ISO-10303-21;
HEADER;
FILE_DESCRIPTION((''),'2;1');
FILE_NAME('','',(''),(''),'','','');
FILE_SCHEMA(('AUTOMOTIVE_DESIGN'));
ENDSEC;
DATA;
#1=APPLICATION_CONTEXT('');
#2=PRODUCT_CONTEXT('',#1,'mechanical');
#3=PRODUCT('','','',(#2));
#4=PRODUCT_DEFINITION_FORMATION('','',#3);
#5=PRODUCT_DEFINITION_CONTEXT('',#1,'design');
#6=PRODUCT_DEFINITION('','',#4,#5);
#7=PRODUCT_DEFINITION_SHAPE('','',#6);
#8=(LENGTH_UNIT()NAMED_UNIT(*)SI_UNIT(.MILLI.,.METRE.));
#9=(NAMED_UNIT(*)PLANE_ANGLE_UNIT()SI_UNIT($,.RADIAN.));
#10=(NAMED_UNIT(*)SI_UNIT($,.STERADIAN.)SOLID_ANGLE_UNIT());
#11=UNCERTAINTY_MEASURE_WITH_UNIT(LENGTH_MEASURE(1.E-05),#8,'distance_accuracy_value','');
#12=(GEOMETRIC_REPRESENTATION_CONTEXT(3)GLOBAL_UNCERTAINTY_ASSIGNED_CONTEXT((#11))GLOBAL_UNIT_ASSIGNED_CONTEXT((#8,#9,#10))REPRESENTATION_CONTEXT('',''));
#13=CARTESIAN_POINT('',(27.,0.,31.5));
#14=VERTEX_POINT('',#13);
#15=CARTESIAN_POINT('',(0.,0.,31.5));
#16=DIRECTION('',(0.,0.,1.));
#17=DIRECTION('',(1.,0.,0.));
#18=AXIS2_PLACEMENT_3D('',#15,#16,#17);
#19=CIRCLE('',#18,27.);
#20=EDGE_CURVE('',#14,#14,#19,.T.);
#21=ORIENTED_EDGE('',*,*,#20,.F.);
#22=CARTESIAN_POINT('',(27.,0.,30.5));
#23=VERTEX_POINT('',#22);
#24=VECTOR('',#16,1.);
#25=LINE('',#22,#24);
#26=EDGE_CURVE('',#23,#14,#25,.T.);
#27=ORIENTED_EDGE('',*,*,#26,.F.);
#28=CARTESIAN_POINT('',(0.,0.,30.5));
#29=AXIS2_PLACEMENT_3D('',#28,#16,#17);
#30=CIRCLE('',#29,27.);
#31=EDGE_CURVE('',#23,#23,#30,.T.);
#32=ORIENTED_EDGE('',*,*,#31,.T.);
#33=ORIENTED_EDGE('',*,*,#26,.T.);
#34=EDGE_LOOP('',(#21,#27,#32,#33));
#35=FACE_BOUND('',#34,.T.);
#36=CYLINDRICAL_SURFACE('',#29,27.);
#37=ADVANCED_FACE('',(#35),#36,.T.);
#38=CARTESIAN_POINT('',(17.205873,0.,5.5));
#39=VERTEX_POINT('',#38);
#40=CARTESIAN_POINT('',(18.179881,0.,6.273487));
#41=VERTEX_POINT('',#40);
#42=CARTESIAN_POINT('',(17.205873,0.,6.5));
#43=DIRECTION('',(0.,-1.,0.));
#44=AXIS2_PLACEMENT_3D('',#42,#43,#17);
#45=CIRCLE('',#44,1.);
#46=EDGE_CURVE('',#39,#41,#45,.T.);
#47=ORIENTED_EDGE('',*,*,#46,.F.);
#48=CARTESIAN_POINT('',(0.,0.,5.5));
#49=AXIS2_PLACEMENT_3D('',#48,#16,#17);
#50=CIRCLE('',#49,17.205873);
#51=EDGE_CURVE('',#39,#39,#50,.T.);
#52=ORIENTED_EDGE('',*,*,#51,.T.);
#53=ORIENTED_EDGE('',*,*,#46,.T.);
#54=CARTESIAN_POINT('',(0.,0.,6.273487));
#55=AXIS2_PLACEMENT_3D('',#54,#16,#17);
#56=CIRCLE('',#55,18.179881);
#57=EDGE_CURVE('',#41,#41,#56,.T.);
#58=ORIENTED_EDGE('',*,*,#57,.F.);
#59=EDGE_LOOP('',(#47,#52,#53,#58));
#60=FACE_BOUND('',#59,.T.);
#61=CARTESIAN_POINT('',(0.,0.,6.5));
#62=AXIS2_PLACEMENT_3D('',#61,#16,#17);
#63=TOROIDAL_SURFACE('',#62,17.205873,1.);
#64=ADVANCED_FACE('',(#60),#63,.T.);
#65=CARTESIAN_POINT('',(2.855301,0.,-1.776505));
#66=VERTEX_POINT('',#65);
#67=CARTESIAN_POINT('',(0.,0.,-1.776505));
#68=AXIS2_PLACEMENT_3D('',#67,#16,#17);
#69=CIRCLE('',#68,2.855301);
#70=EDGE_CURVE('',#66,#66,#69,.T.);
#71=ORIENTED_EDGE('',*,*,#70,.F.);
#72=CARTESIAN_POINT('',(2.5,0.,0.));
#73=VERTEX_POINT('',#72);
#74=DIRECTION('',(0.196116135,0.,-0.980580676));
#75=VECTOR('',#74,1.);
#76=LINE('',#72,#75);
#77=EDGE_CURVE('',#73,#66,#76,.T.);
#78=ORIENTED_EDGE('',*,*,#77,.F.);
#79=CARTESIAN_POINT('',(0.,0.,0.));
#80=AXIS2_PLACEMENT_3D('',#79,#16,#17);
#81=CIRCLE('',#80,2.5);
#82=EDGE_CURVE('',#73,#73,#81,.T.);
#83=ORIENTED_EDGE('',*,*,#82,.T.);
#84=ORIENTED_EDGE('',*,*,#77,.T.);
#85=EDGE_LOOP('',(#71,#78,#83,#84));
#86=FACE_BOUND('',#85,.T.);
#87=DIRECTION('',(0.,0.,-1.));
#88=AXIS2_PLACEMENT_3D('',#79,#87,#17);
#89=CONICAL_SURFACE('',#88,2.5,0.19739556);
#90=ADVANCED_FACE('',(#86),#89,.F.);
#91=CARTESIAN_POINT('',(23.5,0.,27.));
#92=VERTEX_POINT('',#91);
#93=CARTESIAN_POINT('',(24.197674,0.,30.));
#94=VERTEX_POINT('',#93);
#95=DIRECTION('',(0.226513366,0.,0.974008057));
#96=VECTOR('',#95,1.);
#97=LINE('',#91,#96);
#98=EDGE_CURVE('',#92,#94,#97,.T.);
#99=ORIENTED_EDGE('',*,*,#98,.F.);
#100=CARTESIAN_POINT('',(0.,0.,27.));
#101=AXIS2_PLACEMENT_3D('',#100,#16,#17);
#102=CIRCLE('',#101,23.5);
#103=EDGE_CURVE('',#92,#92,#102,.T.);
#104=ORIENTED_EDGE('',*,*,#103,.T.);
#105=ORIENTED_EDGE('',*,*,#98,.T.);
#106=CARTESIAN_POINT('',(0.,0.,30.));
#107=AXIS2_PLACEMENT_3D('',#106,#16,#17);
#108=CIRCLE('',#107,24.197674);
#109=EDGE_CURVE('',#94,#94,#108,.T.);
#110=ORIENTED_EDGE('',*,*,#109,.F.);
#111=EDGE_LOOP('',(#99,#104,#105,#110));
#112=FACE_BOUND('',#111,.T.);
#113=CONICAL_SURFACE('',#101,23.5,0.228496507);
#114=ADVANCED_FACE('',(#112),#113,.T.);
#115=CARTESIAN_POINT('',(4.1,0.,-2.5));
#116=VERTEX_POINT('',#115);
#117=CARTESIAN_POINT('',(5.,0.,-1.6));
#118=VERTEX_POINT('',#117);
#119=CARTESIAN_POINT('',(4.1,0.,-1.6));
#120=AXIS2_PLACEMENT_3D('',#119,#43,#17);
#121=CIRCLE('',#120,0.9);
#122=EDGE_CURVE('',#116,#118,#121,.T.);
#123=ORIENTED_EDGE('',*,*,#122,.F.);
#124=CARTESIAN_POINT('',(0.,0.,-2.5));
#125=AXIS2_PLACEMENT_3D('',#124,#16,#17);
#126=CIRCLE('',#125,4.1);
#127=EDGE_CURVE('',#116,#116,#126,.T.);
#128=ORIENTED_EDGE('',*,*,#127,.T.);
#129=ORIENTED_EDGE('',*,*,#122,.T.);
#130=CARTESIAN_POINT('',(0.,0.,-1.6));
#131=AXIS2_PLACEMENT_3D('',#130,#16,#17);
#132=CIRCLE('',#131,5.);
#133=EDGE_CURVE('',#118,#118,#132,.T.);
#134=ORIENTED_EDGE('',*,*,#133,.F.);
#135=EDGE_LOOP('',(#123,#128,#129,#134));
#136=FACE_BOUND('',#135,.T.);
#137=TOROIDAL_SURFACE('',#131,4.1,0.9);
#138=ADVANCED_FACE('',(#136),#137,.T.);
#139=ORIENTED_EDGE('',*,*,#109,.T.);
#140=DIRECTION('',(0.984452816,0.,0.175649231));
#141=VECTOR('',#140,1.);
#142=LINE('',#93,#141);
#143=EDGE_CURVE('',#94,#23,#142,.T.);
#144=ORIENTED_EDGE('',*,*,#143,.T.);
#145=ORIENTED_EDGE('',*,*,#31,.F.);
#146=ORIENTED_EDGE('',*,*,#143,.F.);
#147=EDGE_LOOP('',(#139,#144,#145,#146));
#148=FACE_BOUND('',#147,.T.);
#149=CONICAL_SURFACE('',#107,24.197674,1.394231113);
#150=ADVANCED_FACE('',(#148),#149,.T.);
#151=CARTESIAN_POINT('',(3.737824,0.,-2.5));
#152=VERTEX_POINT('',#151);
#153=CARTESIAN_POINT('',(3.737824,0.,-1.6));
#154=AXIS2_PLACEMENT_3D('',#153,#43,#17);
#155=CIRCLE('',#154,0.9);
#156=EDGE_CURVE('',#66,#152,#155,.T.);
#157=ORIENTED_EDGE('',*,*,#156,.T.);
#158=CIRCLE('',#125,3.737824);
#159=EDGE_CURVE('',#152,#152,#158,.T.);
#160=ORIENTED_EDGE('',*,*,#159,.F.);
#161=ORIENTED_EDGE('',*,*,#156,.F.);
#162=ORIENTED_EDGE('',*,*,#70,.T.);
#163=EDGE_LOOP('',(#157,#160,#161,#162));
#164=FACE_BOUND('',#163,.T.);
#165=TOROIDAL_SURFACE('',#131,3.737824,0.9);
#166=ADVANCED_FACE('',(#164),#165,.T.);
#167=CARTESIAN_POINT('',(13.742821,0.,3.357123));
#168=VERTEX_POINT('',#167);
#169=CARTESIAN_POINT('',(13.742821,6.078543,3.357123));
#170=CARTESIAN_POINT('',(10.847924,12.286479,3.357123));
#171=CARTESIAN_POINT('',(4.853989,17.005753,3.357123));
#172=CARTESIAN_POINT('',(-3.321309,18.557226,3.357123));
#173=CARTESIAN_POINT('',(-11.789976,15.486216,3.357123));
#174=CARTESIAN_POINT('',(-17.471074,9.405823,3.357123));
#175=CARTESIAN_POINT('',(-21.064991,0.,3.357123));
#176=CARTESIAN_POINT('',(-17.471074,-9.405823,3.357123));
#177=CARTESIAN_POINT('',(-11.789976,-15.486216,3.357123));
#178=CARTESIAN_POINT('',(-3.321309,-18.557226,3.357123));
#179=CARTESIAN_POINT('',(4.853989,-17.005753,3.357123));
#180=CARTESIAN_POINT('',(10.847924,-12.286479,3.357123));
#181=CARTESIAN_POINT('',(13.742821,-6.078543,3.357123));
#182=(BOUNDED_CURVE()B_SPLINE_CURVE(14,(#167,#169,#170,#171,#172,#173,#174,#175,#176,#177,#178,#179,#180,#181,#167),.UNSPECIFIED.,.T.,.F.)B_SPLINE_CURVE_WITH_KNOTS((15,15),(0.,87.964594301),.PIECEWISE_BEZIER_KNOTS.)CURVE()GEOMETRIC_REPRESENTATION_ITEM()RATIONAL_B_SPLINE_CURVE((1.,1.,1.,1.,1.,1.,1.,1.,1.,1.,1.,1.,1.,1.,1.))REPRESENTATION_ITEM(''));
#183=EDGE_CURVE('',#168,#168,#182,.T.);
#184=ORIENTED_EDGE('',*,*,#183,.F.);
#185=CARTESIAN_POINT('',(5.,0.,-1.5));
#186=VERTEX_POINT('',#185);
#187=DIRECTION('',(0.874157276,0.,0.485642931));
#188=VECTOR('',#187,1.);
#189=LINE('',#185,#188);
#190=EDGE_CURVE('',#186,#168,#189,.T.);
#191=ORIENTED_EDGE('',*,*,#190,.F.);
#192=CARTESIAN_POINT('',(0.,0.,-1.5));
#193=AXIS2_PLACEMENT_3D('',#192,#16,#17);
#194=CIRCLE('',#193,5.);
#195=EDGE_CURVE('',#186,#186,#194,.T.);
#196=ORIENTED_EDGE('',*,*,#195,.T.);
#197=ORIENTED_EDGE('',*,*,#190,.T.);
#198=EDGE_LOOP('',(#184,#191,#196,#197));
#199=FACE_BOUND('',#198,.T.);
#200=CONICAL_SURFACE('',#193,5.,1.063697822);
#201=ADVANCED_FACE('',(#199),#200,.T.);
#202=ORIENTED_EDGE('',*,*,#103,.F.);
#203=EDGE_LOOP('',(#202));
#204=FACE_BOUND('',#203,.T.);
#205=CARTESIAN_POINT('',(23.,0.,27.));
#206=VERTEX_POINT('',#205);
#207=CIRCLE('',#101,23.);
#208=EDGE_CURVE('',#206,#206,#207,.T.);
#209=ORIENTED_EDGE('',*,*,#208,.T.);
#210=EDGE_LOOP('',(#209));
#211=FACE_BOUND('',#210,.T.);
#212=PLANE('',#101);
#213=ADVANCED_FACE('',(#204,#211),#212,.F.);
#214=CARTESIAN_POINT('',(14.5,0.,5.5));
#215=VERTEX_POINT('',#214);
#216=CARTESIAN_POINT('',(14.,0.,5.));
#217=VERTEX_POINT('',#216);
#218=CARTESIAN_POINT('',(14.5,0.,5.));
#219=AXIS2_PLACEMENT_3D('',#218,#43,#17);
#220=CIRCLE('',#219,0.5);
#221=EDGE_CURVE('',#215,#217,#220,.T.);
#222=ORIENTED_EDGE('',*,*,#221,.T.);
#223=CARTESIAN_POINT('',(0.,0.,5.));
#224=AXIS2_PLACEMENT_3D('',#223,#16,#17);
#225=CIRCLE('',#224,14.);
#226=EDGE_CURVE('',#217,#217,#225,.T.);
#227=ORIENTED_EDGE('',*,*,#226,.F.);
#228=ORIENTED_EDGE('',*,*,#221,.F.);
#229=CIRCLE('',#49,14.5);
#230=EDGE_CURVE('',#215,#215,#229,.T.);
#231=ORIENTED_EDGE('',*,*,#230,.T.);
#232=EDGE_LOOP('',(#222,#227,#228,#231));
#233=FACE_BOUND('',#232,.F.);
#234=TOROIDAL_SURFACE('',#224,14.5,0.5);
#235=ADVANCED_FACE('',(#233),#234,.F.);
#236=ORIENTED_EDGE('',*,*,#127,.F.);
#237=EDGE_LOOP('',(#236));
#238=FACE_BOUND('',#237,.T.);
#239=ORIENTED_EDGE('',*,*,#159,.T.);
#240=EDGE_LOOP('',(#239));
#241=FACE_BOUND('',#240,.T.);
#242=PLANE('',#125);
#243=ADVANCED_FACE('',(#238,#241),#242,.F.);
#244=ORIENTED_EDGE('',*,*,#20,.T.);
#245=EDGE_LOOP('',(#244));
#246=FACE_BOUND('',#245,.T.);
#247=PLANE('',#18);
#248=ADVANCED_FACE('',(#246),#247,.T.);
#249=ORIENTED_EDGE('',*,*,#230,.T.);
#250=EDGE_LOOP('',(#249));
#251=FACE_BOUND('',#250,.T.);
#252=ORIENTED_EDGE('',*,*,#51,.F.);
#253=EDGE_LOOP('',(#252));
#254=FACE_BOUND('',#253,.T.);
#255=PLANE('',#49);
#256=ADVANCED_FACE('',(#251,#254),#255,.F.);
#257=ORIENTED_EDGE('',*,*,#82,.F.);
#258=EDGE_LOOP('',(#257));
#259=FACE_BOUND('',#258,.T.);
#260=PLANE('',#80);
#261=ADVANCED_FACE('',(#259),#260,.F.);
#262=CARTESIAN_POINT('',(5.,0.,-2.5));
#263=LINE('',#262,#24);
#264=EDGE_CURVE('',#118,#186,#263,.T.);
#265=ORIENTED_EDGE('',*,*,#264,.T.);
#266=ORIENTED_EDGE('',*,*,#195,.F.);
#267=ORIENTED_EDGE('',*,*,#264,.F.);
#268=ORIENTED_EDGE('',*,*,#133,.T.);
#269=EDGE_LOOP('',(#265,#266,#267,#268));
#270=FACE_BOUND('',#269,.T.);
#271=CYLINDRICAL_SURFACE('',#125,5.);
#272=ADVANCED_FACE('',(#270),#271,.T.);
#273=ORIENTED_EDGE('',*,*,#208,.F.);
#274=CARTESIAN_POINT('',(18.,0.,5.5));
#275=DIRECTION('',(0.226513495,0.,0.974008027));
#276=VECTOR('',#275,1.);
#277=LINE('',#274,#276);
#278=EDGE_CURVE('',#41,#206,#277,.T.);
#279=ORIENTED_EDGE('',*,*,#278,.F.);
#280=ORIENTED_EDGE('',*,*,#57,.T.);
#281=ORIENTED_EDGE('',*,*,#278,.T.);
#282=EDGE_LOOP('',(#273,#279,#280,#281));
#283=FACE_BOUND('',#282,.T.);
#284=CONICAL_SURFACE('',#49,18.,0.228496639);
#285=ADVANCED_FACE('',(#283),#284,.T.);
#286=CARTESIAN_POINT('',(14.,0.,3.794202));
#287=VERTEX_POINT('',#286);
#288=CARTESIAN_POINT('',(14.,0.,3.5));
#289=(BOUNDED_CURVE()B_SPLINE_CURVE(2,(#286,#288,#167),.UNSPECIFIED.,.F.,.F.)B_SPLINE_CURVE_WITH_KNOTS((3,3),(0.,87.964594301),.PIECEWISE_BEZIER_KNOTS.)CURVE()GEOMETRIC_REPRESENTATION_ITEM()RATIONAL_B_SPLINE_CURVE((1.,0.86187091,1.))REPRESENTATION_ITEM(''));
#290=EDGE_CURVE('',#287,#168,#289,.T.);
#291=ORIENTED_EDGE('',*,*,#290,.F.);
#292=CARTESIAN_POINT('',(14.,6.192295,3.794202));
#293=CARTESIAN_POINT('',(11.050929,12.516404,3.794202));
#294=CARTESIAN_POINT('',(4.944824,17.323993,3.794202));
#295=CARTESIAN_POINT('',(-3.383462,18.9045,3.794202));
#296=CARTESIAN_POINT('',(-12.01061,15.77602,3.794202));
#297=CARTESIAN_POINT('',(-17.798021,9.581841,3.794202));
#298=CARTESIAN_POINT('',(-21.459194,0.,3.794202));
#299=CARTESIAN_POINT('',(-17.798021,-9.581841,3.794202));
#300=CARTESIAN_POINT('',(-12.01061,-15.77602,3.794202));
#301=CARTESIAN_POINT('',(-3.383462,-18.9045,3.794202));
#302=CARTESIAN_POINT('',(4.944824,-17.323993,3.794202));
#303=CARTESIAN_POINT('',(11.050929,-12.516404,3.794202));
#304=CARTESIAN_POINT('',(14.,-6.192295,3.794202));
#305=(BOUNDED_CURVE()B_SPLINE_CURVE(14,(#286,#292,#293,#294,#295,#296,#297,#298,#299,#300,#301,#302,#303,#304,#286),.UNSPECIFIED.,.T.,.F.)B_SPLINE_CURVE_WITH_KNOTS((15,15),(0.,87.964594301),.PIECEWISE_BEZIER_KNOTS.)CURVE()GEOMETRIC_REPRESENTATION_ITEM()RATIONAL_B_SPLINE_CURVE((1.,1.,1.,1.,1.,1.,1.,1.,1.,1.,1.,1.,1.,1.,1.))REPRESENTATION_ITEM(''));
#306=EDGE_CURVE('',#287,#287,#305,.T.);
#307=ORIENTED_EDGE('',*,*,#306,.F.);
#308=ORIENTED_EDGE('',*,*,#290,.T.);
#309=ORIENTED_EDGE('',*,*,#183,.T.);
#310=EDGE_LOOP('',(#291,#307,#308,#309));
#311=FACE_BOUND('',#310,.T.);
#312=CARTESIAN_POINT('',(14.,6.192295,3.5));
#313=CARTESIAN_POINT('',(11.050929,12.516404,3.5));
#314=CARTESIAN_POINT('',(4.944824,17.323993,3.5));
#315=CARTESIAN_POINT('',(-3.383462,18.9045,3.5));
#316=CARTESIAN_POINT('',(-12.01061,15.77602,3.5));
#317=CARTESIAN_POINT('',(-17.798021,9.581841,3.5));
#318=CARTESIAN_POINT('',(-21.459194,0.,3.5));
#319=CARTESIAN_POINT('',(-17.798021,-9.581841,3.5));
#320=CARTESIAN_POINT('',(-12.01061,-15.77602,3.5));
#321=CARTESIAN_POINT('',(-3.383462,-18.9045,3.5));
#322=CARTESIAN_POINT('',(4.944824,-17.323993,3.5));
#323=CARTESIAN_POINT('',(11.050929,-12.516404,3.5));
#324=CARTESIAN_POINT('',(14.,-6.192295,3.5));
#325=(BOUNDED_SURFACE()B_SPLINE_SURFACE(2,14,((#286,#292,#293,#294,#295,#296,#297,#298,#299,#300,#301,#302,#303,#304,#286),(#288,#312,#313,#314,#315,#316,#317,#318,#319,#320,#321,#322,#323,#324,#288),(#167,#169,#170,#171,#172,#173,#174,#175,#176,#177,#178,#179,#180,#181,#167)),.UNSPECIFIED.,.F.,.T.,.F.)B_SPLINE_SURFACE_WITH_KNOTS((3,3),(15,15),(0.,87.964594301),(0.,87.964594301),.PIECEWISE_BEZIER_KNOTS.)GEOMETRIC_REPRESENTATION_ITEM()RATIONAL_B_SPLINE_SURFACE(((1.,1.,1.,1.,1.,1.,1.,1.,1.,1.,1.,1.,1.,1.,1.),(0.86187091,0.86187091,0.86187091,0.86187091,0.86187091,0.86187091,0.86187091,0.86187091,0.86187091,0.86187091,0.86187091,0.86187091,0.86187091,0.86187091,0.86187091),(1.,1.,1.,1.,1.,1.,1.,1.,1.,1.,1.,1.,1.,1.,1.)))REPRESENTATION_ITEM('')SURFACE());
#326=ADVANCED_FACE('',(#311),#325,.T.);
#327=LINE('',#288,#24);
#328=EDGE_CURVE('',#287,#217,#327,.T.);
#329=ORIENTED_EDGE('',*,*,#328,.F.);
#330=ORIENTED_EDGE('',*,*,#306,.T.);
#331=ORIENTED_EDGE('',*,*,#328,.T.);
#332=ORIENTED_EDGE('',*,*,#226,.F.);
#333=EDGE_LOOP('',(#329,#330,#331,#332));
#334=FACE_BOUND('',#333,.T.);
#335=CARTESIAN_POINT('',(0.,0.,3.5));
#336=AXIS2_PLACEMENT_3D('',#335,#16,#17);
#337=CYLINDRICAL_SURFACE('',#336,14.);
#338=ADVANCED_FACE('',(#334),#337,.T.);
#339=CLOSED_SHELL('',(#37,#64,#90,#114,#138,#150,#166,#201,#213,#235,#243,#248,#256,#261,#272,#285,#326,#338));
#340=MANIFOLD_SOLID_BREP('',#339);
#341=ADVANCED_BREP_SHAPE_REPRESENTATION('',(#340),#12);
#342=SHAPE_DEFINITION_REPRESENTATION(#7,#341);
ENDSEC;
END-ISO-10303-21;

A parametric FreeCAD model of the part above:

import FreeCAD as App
import Part
import Sketcher
from FreeCAD import Vector
Q = App.Units.Quantity


def edges_at(feature, points):
    """Names of the edges that pass closest to the given points."""
    edges = feature.Shape.Edges
    near = lambda p: min(range(len(edges)), key=lambda i: edges[i].distToShape(Part.Vertex(*p))[0])
    return sorted({f"Edge{near(p) + 1}" for p in points})


def add_polygon(sketch, points):
    """Adds a closed chain of lines whose ends are joined by coincident constraints."""
    first, n = sketch.GeometryCount, len(points)
    for a, b in zip(points, points[1:] + points[:1]):
        sketch.addGeometry(Part.LineSegment(App.Vector(*a, 0), App.Vector(*b, 0)), False)
    for i in range(n):
        sketch.addConstraint(Sketcher.Constraint("Coincident", first + i, 2, first + (i + 1) % n, 1))

doc = App.newDocument("Part")
body = doc.addObject("PartDesign::Body", "Body")

sketch1 = body.newObject("Sketcher::SketchObject", "Sketch")
sketch1.AttachmentSupport = (doc.getObject("XZ_Plane"), [""])
sketch1.MapMode = "FlatFace"
add_polygon(sketch1, [(0, 0), (2.5, 0), (3, -2.5), (5, -2.5), (5, -1.5), (14, 3.5), (14, 5.5), (18, 5.5), (23, 27), (23.5, 27), (24.197674, 30), (27, 30.5), (27, 31.5), (0, 31.5)])
sketch1.addConstraint([
    Sketcher.Constraint("Horizontal", 0),
    Sketcher.Constraint("Horizontal", 2),
    Sketcher.Constraint("Vertical", 3),
    Sketcher.Constraint("Vertical", 5),
    Sketcher.Constraint("Horizontal", 6),
    Sketcher.Constraint("Horizontal", 8),
    Sketcher.Constraint("Vertical", 11),
    Sketcher.Constraint("Horizontal", 12),
    Sketcher.Constraint("Vertical", 13),
    Sketcher.Constraint("Coincident", 13, 2, -1, 1),
    Sketcher.Constraint("Parallel", 7, 9),
    Sketcher.Constraint("Equal", 2, 5),
    Sketcher.Constraint("Equal", 3, 11),
    Sketcher.Constraint("DistanceX", 2, 1, 2, 2, Q("2 mm")),
    Sketcher.Constraint("DistanceX", 6, 1, 6, 2, Q("4 mm")),
    Sketcher.Constraint("DistanceX", 12, 2, 12, 1, Q("27 mm")),
    Sketcher.Constraint("DistanceY", 3, 1, 3, 2, Q("1 mm")),
    Sketcher.Constraint("DistanceX", 0, 1, 0, 2, Q("2.5 mm")),
    Sketcher.Constraint("DistanceX", 8, 1, 8, 2, Q("0.5 mm")),
    Sketcher.Constraint("DistanceY", 13, 2, 13, 1, Q("31.5 mm")),
    Sketcher.Constraint("DistanceX", -1, 1, 1, 2, Q("3 mm")),
    Sketcher.Constraint("DistanceX", -1, 1, 4, 2, Q("14 mm")),
    Sketcher.Constraint("DistanceX", -1, 1, 7, 2, Q("23 mm")),
    Sketcher.Constraint("DistanceY", -1, 1, 7, 2, Q("27 mm")),
    Sketcher.Constraint("DistanceY", -1, 1, 9, 2, Q("30 mm")),
    Sketcher.Constraint("DistanceY", 3, 2, 4, 2, Q("5 mm")),
    Sketcher.Constraint("DistanceY", 6, 2, 10, 2, Q("25 mm")),
])
revolution = body.newObject("PartDesign::Revolution", "Revolution")
revolution.Profile = sketch1
revolution.ReferenceAxis = (sketch1, ["V_Axis"])
revolution.Angle = 360
doc.recompute()

fillet = body.newObject("PartDesign::Fillet", "Fillet")
fillet.Base = (revolution, edges_at(revolution, [(-3, 0, -2.5), (-5, 0, -2.5)]))
fillet.Radius = 0.9
doc.recompute()

fillet2 = body.newObject("PartDesign::Fillet", "Fillet001")
fillet2.Base = (fillet, edges_at(fillet, [(-18, 0, 5.5)]))
fillet2.Radius = 1
doc.recompute()

fillet3 = body.newObject("PartDesign::Fillet", "Fillet002")
fillet3.Base = (fillet2, edges_at(fillet2, [(-14, 0, 3.5), (-14, 0, 5.5)]))
fillet3.Radius = 0.5

doc.recompute()
